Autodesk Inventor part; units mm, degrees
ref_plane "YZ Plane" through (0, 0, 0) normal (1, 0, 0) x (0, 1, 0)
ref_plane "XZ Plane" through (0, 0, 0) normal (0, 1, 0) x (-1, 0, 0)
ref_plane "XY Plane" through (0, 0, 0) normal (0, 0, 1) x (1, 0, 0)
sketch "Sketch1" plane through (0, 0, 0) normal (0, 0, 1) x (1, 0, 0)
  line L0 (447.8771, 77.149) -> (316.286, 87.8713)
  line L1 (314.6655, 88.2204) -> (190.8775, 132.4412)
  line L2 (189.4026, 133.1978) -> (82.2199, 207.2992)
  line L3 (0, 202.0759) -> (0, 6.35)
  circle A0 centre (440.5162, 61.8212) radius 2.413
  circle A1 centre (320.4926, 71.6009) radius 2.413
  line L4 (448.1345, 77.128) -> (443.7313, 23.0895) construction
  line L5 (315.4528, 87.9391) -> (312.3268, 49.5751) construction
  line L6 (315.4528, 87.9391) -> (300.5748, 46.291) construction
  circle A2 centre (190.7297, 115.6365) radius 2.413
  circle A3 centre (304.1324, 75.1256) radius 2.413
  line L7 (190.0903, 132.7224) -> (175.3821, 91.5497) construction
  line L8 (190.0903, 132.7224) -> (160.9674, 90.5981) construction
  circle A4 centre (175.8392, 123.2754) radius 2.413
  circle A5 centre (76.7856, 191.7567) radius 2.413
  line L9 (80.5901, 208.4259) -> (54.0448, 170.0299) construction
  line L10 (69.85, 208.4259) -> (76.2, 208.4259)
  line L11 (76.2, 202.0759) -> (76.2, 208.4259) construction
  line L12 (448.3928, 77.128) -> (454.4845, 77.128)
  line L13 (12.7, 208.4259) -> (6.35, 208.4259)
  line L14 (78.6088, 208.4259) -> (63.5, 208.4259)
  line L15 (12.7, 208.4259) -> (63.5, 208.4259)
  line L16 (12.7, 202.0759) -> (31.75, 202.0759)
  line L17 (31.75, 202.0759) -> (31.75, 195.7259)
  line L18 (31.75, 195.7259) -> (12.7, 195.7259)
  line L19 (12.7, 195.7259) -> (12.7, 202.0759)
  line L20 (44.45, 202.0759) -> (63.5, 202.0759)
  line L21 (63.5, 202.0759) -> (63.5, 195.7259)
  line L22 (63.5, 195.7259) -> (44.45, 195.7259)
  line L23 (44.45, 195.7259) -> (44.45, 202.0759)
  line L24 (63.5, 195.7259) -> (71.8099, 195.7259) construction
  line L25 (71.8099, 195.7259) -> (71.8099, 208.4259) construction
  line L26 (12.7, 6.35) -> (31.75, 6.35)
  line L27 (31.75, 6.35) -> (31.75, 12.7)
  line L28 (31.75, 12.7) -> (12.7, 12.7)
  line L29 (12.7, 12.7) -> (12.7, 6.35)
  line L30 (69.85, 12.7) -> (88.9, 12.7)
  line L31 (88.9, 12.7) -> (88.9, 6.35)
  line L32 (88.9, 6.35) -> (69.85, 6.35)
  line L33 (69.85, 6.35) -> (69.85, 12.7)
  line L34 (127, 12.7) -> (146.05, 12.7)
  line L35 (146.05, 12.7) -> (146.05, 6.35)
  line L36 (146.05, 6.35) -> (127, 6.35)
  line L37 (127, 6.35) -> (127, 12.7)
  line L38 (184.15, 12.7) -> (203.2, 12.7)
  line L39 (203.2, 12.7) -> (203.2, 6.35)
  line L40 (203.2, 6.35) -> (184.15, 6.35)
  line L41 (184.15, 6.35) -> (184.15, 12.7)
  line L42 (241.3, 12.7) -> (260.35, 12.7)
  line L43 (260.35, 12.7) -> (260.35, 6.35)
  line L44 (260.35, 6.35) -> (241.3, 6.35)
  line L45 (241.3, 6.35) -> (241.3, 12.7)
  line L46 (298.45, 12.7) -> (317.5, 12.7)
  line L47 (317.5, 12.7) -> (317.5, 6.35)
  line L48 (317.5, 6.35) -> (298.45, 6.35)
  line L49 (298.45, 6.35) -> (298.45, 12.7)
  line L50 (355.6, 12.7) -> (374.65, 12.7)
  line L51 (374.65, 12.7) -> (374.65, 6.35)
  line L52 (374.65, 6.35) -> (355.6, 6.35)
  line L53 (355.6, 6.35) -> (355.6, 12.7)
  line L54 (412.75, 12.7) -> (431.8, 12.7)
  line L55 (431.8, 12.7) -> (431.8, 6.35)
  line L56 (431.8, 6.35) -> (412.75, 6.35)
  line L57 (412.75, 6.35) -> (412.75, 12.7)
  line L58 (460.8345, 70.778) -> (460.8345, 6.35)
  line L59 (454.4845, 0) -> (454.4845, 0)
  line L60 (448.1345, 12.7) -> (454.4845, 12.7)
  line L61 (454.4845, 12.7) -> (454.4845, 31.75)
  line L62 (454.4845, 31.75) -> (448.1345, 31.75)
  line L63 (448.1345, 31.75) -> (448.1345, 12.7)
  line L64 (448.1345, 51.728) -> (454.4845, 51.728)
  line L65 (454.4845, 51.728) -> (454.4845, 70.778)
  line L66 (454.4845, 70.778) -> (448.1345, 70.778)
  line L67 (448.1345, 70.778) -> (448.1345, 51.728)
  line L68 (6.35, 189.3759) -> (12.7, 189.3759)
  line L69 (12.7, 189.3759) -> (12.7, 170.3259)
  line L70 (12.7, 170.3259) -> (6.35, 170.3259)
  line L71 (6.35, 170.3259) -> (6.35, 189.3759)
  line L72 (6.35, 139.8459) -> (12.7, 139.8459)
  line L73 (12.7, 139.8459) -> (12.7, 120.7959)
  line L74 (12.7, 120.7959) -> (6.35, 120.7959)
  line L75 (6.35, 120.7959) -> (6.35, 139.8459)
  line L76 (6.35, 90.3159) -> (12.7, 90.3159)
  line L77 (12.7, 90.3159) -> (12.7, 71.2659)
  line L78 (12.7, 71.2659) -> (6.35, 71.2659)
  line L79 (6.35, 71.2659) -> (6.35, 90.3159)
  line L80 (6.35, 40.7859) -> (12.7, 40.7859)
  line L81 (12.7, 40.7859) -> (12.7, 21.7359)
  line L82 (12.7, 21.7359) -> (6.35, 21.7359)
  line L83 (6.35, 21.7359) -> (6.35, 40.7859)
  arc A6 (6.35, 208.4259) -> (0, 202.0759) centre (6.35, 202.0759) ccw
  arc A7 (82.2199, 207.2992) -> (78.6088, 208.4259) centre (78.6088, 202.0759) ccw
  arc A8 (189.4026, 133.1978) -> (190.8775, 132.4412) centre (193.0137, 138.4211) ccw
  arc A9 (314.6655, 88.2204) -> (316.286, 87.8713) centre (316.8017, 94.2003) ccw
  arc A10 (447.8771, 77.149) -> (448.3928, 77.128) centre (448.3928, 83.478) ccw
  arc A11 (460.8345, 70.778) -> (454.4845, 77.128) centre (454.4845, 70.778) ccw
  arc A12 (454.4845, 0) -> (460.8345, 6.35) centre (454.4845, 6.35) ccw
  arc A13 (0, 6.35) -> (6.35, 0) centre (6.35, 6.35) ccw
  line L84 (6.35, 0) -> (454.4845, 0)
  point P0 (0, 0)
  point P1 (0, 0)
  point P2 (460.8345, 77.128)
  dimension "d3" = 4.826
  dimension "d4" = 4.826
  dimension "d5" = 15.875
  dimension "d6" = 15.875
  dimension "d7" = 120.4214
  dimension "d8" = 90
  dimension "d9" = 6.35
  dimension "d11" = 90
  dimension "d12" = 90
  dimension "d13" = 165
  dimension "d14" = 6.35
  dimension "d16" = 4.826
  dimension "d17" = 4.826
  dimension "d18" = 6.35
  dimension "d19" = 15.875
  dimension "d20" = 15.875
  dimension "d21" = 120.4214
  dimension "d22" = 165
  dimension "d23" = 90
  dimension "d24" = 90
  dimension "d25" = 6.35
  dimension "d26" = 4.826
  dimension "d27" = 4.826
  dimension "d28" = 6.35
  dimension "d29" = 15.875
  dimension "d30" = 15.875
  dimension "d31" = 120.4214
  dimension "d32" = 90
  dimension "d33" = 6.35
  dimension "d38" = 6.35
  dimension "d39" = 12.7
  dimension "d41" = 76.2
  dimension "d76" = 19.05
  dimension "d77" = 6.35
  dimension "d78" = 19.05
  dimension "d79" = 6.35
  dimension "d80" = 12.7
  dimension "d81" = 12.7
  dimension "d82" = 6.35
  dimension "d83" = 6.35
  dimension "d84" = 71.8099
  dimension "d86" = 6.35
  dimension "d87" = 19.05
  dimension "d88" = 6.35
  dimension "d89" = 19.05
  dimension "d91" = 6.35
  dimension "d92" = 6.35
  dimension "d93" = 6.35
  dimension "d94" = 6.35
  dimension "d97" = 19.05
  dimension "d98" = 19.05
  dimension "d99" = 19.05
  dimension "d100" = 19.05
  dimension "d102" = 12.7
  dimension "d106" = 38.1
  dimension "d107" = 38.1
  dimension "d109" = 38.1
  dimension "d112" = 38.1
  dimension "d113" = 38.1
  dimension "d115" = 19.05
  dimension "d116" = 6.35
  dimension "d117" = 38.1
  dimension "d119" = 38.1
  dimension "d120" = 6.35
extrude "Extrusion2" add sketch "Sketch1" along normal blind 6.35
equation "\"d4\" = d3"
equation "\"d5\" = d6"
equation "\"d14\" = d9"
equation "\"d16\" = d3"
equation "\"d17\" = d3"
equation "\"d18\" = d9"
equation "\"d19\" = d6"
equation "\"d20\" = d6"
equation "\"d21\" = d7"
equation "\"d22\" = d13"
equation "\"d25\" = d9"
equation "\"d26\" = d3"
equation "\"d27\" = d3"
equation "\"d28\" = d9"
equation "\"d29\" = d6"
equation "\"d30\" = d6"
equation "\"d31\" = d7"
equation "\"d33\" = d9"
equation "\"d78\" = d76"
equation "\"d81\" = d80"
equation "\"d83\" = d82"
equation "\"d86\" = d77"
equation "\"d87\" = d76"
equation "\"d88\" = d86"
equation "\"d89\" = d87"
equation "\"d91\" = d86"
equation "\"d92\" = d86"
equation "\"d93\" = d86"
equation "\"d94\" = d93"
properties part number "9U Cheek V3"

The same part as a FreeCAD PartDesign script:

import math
import FreeCAD as App
import Part
import Sketcher
from FreeCAD import Vector
Q = App.Units.Quantity

doc = App.newDocument("Part")
body = doc.addObject("PartDesign::Body", "Body")

sketch1 = body.newObject("Sketcher::SketchObject", "Sketch")
sketch1.AttachmentSupport = (doc.getObject("XY_Plane"), [""])
sketch1.MapMode = "FlatFace"
sketch1.addGeometry(Part.ArcOfCircle(Part.Circle(Vector(448.39371, 83.492903, 0), Vector(0, 0, 1), 6.364903), math.radians(-94.655556), math.radians(-90.00819)), False)
sketch1.addGeometry(Part.LineSegment(Vector(447.8771, 77.149, 0), Vector(316.286, 87.8713, 0)), False)
sketch1.addGeometry(Part.ArcOfCircle(Part.Circle(Vector(316.801236, 94.198673, 0), Vector(0, 0, 1), 6.348316), math.radians(-109.659253), math.radians(-94.655308)), False)
sketch1.addGeometry(Part.LineSegment(Vector(314.6655, 88.2204, 0), Vector(190.8775, 132.4412, 0)), False)
sketch1.addGeometry(Part.ArcOfCircle(Part.Circle(Vector(193.012867, 138.419709, 0), Vector(0, 0, 1), 6.348414), math.radians(-124.658789), math.radians(-109.6554)), False)
sketch1.addGeometry(Part.LineSegment(Vector(189.4026, 133.1978, 0), Vector(82.2199, 207.2992, 0)), False)
sketch1.addGeometry(Part.ArcOfCircle(Part.Circle(Vector(78.6088, 202.0759, 0), Vector(0, 0, 1), 6.350032), math.radians(55.342168), math.radians(90)), False)
sketch1.addGeometry(Part.LineSegment(Vector(78.6088, 208.4259, 0), Vector(6.35, 208.4259, 0)), False)
sketch1.addGeometry(Part.ArcOfCircle(Part.Circle(Vector(6.35, 202.0759, 0), Vector(0, 0, 1), 6.35), math.radians(90), math.radians(180)), False)
sketch1.addGeometry(Part.LineSegment(Vector(0, 202.0759, 0), Vector(0, 6.35, 0)), False)
sketch1.addGeometry(Part.ArcOfCircle(Part.Circle(Vector(6.35, 6.35, 0), Vector(0, 0, 1), 6.35), math.radians(180), math.radians(270)), False)
sketch1.addGeometry(Part.LineSegment(Vector(6.35, 0, 0), Vector(454.4845, 0, 0)), False)
sketch1.addGeometry(Part.ArcOfCircle(Part.Circle(Vector(454.4845, 6.35, 0), Vector(0, 0, 1), 6.35), math.radians(-90), math.radians(0)), False)
sketch1.addGeometry(Part.LineSegment(Vector(460.8345, 6.35, 0), Vector(460.8345, 70.778, 0)), False)
sketch1.addGeometry(Part.ArcOfCircle(Part.Circle(Vector(454.4845, 70.778, 0), Vector(0, 0, 1), 6.35), math.radians(0), math.radians(90)), False)
sketch1.addGeometry(Part.LineSegment(Vector(454.4845, 77.128, 0), Vector(448.3928, 77.128, 0)), False)
sketch1.addGeometry(Part.LineSegment(Vector(31.75, 6.35, 0), Vector(12.7, 6.35, 0)), False)
sketch1.addGeometry(Part.LineSegment(Vector(12.7, 6.35, 0), Vector(12.7, 12.7, 0)), False)
sketch1.addGeometry(Part.LineSegment(Vector(12.7, 12.7, 0), Vector(31.75, 12.7, 0)), False)
sketch1.addGeometry(Part.LineSegment(Vector(31.75, 12.7, 0), Vector(31.75, 6.35, 0)), False)
sketch1.addGeometry(Part.LineSegment(Vector(69.85, 6.35, 0), Vector(69.85, 12.7, 0)), False)
sketch1.addGeometry(Part.LineSegment(Vector(69.85, 12.7, 0), Vector(88.9, 12.7, 0)), False)
sketch1.addGeometry(Part.LineSegment(Vector(88.9, 12.7, 0), Vector(88.9, 6.35, 0)), False)
sketch1.addGeometry(Part.LineSegment(Vector(88.9, 6.35, 0), Vector(69.85, 6.35, 0)), False)
sketch1.addGeometry(Part.LineSegment(Vector(6.35, 21.7359, 0), Vector(6.35, 40.7859, 0)), False)
sketch1.addGeometry(Part.LineSegment(Vector(6.35, 40.7859, 0), Vector(12.7, 40.7859, 0)), False)
sketch1.addGeometry(Part.LineSegment(Vector(12.7, 40.7859, 0), Vector(12.7, 21.7359, 0)), False)
sketch1.addGeometry(Part.LineSegment(Vector(12.7, 21.7359, 0), Vector(6.35, 21.7359, 0)), False)
sketch1.addGeometry(Part.LineSegment(Vector(127, 6.35, 0), Vector(127, 12.7, 0)), False)
sketch1.addGeometry(Part.LineSegment(Vector(127, 12.7, 0), Vector(146.05, 12.7, 0)), False)
sketch1.addGeometry(Part.LineSegment(Vector(146.05, 12.7, 0), Vector(146.05, 6.35, 0)), False)
sketch1.addGeometry(Part.LineSegment(Vector(146.05, 6.35, 0), Vector(127, 6.35, 0)), False)
sketch1.addGeometry(Part.LineSegment(Vector(184.15, 6.35, 0), Vector(184.15, 12.7, 0)), False)
sketch1.addGeometry(Part.LineSegment(Vector(184.15, 12.7, 0), Vector(203.2, 12.7, 0)), False)
sketch1.addGeometry(Part.LineSegment(Vector(203.2, 12.7, 0), Vector(203.2, 6.35, 0)), False)
sketch1.addGeometry(Part.LineSegment(Vector(203.2, 6.35, 0), Vector(184.15, 6.35, 0)), False)
sketch1.addGeometry(Part.LineSegment(Vector(6.35, 71.2659, 0), Vector(6.35, 90.3159, 0)), False)
sketch1.addGeometry(Part.LineSegment(Vector(6.35, 90.3159, 0), Vector(12.7, 90.3159, 0)), False)
sketch1.addGeometry(Part.LineSegment(Vector(12.7, 90.3159, 0), Vector(12.7, 71.2659, 0)), False)
sketch1.addGeometry(Part.LineSegment(Vector(12.7, 71.2659, 0), Vector(6.35, 71.2659, 0)), False)
sketch1.addGeometry(Part.LineSegment(Vector(241.3, 6.35, 0), Vector(241.3, 12.7, 0)), False)
sketch1.addGeometry(Part.LineSegment(Vector(241.3, 12.7, 0), Vector(260.35, 12.7, 0)), False)
sketch1.addGeometry(Part.LineSegment(Vector(260.35, 12.7, 0), Vector(260.35, 6.35, 0)), False)
sketch1.addGeometry(Part.LineSegment(Vector(260.35, 6.35, 0), Vector(241.3, 6.35, 0)), False)
sketch1.addGeometry(Part.LineSegment(Vector(298.45, 6.35, 0), Vector(298.45, 12.7, 0)), False)
sketch1.addGeometry(Part.LineSegment(Vector(298.45, 12.7, 0), Vector(317.5, 12.7, 0)), False)
sketch1.addGeometry(Part.LineSegment(Vector(317.5, 12.7, 0), Vector(317.5, 6.35, 0)), False)
sketch1.addGeometry(Part.LineSegment(Vector(317.5, 6.35, 0), Vector(298.45, 6.35, 0)), False)
sketch1.addGeometry(Part.LineSegment(Vector(355.6, 6.35, 0), Vector(355.6, 12.7, 0)), False)
sketch1.addGeometry(Part.LineSegment(Vector(355.6, 12.7, 0), Vector(374.65, 12.7, 0)), False)
sketch1.addGeometry(Part.LineSegment(Vector(374.65, 12.7, 0), Vector(374.65, 6.35, 0)), False)
sketch1.addGeometry(Part.LineSegment(Vector(374.65, 6.35, 0), Vector(355.6, 6.35, 0)), False)
sketch1.addGeometry(Part.LineSegment(Vector(412.75, 6.35, 0), Vector(412.75, 12.7, 0)), False)
sketch1.addGeometry(Part.LineSegment(Vector(412.75, 12.7, 0), Vector(431.8, 12.7, 0)), False)
sketch1.addGeometry(Part.LineSegment(Vector(431.8, 12.7, 0), Vector(431.8, 6.35, 0)), False)
sketch1.addGeometry(Part.LineSegment(Vector(431.8, 6.35, 0), Vector(412.75, 6.35, 0)), False)
sketch1.addGeometry(Part.LineSegment(Vector(454.4845, 12.7, 0), Vector(448.1345, 12.7, 0)), False)
sketch1.addGeometry(Part.LineSegment(Vector(448.1345, 12.7, 0), Vector(448.1345, 31.75, 0)), False)
sketch1.addGeometry(Part.LineSegment(Vector(448.1345, 31.75, 0), Vector(454.4845, 31.75, 0)), False)
sketch1.addGeometry(Part.LineSegment(Vector(454.4845, 31.75, 0), Vector(454.4845, 12.7, 0)), False)
sketch1.addGeometry(Part.Circle(Vector(304.1324, 75.1256, 0), Vector(0, 0, 1), 2.413), False)
sketch1.addGeometry(Part.Circle(Vector(320.4926, 71.6009, 0), Vector(0, 0, 1), 2.413), False)
sketch1.addGeometry(Part.Circle(Vector(440.5162, 61.8212, 0), Vector(0, 0, 1), 2.413), False)
sketch1.addGeometry(Part.LineSegment(Vector(454.4845, 51.728, 0), Vector(448.1345, 51.728, 0)), False)
sketch1.addGeometry(Part.LineSegment(Vector(448.1345, 51.728, 0), Vector(448.1345, 70.778, 0)), False)
sketch1.addGeometry(Part.LineSegment(Vector(448.1345, 70.778, 0), Vector(454.4845, 70.778, 0)), False)
sketch1.addGeometry(Part.LineSegment(Vector(454.4845, 70.778, 0), Vector(454.4845, 51.728, 0)), False)
sketch1.addGeometry(Part.LineSegment(Vector(6.35, 120.7959, 0), Vector(6.35, 139.8459, 0)), False)
sketch1.addGeometry(Part.LineSegment(Vector(6.35, 139.8459, 0), Vector(12.7, 139.8459, 0)), False)
sketch1.addGeometry(Part.LineSegment(Vector(12.7, 139.8459, 0), Vector(12.7, 120.7959, 0)), False)
sketch1.addGeometry(Part.LineSegment(Vector(12.7, 120.7959, 0), Vector(6.35, 120.7959, 0)), False)
sketch1.addGeometry(Part.Circle(Vector(190.7297, 115.6365, 0), Vector(0, 0, 1), 2.413), False)
sketch1.addGeometry(Part.Circle(Vector(175.8392, 123.2754, 0), Vector(0, 0, 1), 2.413), False)
sketch1.addGeometry(Part.LineSegment(Vector(6.35, 170.3259, 0), Vector(6.35, 189.3759, 0)), False)
sketch1.addGeometry(Part.LineSegment(Vector(6.35, 189.3759, 0), Vector(12.7, 189.3759, 0)), False)
sketch1.addGeometry(Part.LineSegment(Vector(12.7, 189.3759, 0), Vector(12.7, 170.3259, 0)), False)
sketch1.addGeometry(Part.LineSegment(Vector(12.7, 170.3259, 0), Vector(6.35, 170.3259, 0)), False)
sketch1.addGeometry(Part.LineSegment(Vector(12.7, 195.7259, 0), Vector(12.7, 202.0759, 0)), False)
sketch1.addGeometry(Part.LineSegment(Vector(12.7, 202.0759, 0), Vector(31.75, 202.0759, 0)), False)
sketch1.addGeometry(Part.LineSegment(Vector(31.75, 202.0759, 0), Vector(31.75, 195.7259, 0)), False)
sketch1.addGeometry(Part.LineSegment(Vector(31.75, 195.7259, 0), Vector(12.7, 195.7259, 0)), False)
sketch1.addGeometry(Part.LineSegment(Vector(44.45, 195.7259, 0), Vector(44.45, 202.0759, 0)), False)
sketch1.addGeometry(Part.LineSegment(Vector(44.45, 202.0759, 0), Vector(63.5, 202.0759, 0)), False)
sketch1.addGeometry(Part.LineSegment(Vector(63.5, 202.0759, 0), Vector(63.5, 195.7259, 0)), False)
sketch1.addGeometry(Part.LineSegment(Vector(63.5, 195.7259, 0), Vector(44.45, 195.7259, 0)), False)
sketch1.addGeometry(Part.Circle(Vector(76.7856, 191.7567, 0), Vector(0, 0, 1), 2.413), False)
sketch1.addConstraint(Sketcher.Constraint("Coincident", 0, 1, 1, 1))
sketch1.addConstraint(Sketcher.Constraint("Coincident", 1, 2, 2, 2))
sketch1.addConstraint(Sketcher.Constraint("Coincident", 2, 1, 3, 1))
sketch1.addConstraint(Sketcher.Constraint("Coincident", 3, 2, 4, 2))
sketch1.addConstraint(Sketcher.Constraint("Coincident", 4, 1, 5, 1))
sketch1.addConstraint(Sketcher.Constraint("Coincident", 5, 2, 6, 1))
sketch1.addConstraint(Sketcher.Constraint("Coincident", 6, 2, 7, 1))
sketch1.addConstraint(Sketcher.Constraint("Coincident", 7, 2, 8, 1))
sketch1.addConstraint(Sketcher.Constraint("Coincident", 8, 2, 9, 1))
sketch1.addConstraint(Sketcher.Constraint("Coincident", 9, 2, 10, 1))
sketch1.addConstraint(Sketcher.Constraint("Coincident", 10, 2, 11, 1))
sketch1.addConstraint(Sketcher.Constraint("Coincident", 11, 2, 12, 1))
sketch1.addConstraint(Sketcher.Constraint("Coincident", 12, 2, 13, 1))
sketch1.addConstraint(Sketcher.Constraint("Coincident", 13, 2, 14, 1))
sketch1.addConstraint(Sketcher.Constraint("Coincident", 14, 2, 15, 1))
sketch1.addConstraint(Sketcher.Constraint("Coincident", 15, 2, 0, 2))
sketch1.addConstraint(Sketcher.Constraint("Coincident", 16, 2, 17, 1))
sketch1.addConstraint(Sketcher.Constraint("Coincident", 17, 2, 18, 1))
sketch1.addConstraint(Sketcher.Constraint("Coincident", 18, 2, 19, 1))
sketch1.addConstraint(Sketcher.Constraint("Coincident", 19, 2, 16, 1))
sketch1.addConstraint(Sketcher.Constraint("Coincident", 20, 2, 21, 1))
sketch1.addConstraint(Sketcher.Constraint("Coincident", 21, 2, 22, 1))
sketch1.addConstraint(Sketcher.Constraint("Coincident", 22, 2, 23, 1))
sketch1.addConstraint(Sketcher.Constraint("Coincident", 23, 2, 20, 1))
sketch1.addConstraint(Sketcher.Constraint("Coincident", 24, 2, 25, 1))
sketch1.addConstraint(Sketcher.Constraint("Coincident", 25, 2, 26, 1))
sketch1.addConstraint(Sketcher.Constraint("Coincident", 26, 2, 27, 1))
sketch1.addConstraint(Sketcher.Constraint("Coincident", 27, 2, 24, 1))
sketch1.addConstraint(Sketcher.Constraint("Coincident", 28, 2, 29, 1))
sketch1.addConstraint(Sketcher.Constraint("Coincident", 29, 2, 30, 1))
sketch1.addConstraint(Sketcher.Constraint("Coincident", 30, 2, 31, 1))
sketch1.addConstraint(Sketcher.Constraint("Coincident", 31, 2, 28, 1))
sketch1.addConstraint(Sketcher.Constraint("Coincident", 32, 2, 33, 1))
sketch1.addConstraint(Sketcher.Constraint("Coincident", 33, 2, 34, 1))
sketch1.addConstraint(Sketcher.Constraint("Coincident", 34, 2, 35, 1))
sketch1.addConstraint(Sketcher.Constraint("Coincident", 35, 2, 32, 1))
sketch1.addConstraint(Sketcher.Constraint("Coincident", 36, 2, 37, 1))
sketch1.addConstraint(Sketcher.Constraint("Coincident", 37, 2, 38, 1))
sketch1.addConstraint(Sketcher.Constraint("Coincident", 38, 2, 39, 1))
sketch1.addConstraint(Sketcher.Constraint("Coincident", 39, 2, 36, 1))
sketch1.addConstraint(Sketcher.Constraint("Coincident", 40, 2, 41, 1))
sketch1.addConstraint(Sketcher.Constraint("Coincident", 41, 2, 42, 1))
sketch1.addConstraint(Sketcher.Constraint("Coincident", 42, 2, 43, 1))
sketch1.addConstraint(Sketcher.Constraint("Coincident", 43, 2, 40, 1))
sketch1.addConstraint(Sketcher.Constraint("Coincident", 44, 2, 45, 1))
sketch1.addConstraint(Sketcher.Constraint("Coincident", 45, 2, 46, 1))
sketch1.addConstraint(Sketcher.Constraint("Coincident", 46, 2, 47, 1))
sketch1.addConstraint(Sketcher.Constraint("Coincident", 47, 2, 44, 1))
sketch1.addConstraint(Sketcher.Constraint("Coincident", 48, 2, 49, 1))
sketch1.addConstraint(Sketcher.Constraint("Coincident", 49, 2, 50, 1))
sketch1.addConstraint(Sketcher.Constraint("Coincident", 50, 2, 51, 1))
sketch1.addConstraint(Sketcher.Constraint("Coincident", 51, 2, 48, 1))
sketch1.addConstraint(Sketcher.Constraint("Coincident", 52, 2, 53, 1))
sketch1.addConstraint(Sketcher.Constraint("Coincident", 53, 2, 54, 1))
sketch1.addConstraint(Sketcher.Constraint("Coincident", 54, 2, 55, 1))
sketch1.addConstraint(Sketcher.Constraint("Coincident", 55, 2, 52, 1))
sketch1.addConstraint(Sketcher.Constraint("Coincident", 56, 2, 57, 1))
sketch1.addConstraint(Sketcher.Constraint("Coincident", 57, 2, 58, 1))
sketch1.addConstraint(Sketcher.Constraint("Coincident", 58, 2, 59, 1))
sketch1.addConstraint(Sketcher.Constraint("Coincident", 59, 2, 56, 1))
sketch1.addConstraint(Sketcher.Constraint("Coincident", 63, 2, 64, 1))
sketch1.addConstraint(Sketcher.Constraint("Coincident", 64, 2, 65, 1))
sketch1.addConstraint(Sketcher.Constraint("Coincident", 65, 2, 66, 1))
sketch1.addConstraint(Sketcher.Constraint("Coincident", 66, 2, 63, 1))
sketch1.addConstraint(Sketcher.Constraint("Coincident", 67, 2, 68, 1))
sketch1.addConstraint(Sketcher.Constraint("Coincident", 68, 2, 69, 1))
sketch1.addConstraint(Sketcher.Constraint("Coincident", 69, 2, 70, 1))
sketch1.addConstraint(Sketcher.Constraint("Coincident", 70, 2, 67, 1))
sketch1.addConstraint(Sketcher.Constraint("Coincident", 73, 2, 74, 1))
sketch1.addConstraint(Sketcher.Constraint("Coincident", 74, 2, 75, 1))
sketch1.addConstraint(Sketcher.Constraint("Coincident", 75, 2, 76, 1))
sketch1.addConstraint(Sketcher.Constraint("Coincident", 76, 2, 73, 1))
sketch1.addConstraint(Sketcher.Constraint("Coincident", 77, 2, 78, 1))
sketch1.addConstraint(Sketcher.Constraint("Coincident", 78, 2, 79, 1))
sketch1.addConstraint(Sketcher.Constraint("Coincident", 79, 2, 80, 1))
sketch1.addConstraint(Sketcher.Constraint("Coincident", 80, 2, 77, 1))
sketch1.addConstraint(Sketcher.Constraint("Coincident", 81, 2, 82, 1))
sketch1.addConstraint(Sketcher.Constraint("Coincident", 82, 2, 83, 1))
sketch1.addConstraint(Sketcher.Constraint("Coincident", 83, 2, 84, 1))
sketch1.addConstraint(Sketcher.Constraint("Coincident", 84, 2, 81, 1))
sketch1.addConstraint(Sketcher.Constraint("Horizontal", 7))
sketch1.addConstraint(Sketcher.Constraint("Vertical", 9))
sketch1.addConstraint(Sketcher.Constraint("Horizontal", 11))
sketch1.addConstraint(Sketcher.Constraint("Vertical", 13))
sketch1.addConstraint(Sketcher.Constraint("Horizontal", 15))
sketch1.addConstraint(Sketcher.Constraint("Horizontal", 16))
sketch1.addConstraint(Sketcher.Constraint("Vertical", 17))
sketch1.addConstraint(Sketcher.Constraint("Horizontal", 18))
sketch1.addConstraint(Sketcher.Constraint("Vertical", 19))
sketch1.addConstraint(Sketcher.Constraint("Vertical", 20))
sketch1.addConstraint(Sketcher.Constraint("Horizontal", 21))
sketch1.addConstraint(Sketcher.Constraint("Vertical", 22))
sketch1.addConstraint(Sketcher.Constraint("Horizontal", 23))
sketch1.addConstraint(Sketcher.Constraint("Vertical", 24))
sketch1.addConstraint(Sketcher.Constraint("Horizontal", 25))
sketch1.addConstraint(Sketcher.Constraint("Vertical", 26))
sketch1.addConstraint(Sketcher.Constraint("Horizontal", 27))
sketch1.addConstraint(Sketcher.Constraint("Vertical", 28))
sketch1.addConstraint(Sketcher.Constraint("Horizontal", 29))
sketch1.addConstraint(Sketcher.Constraint("Vertical", 30))
sketch1.addConstraint(Sketcher.Constraint("Horizontal", 31))
sketch1.addConstraint(Sketcher.Constraint("Vertical", 32))
sketch1.addConstraint(Sketcher.Constraint("Horizontal", 33))
sketch1.addConstraint(Sketcher.Constraint("Vertical", 34))
sketch1.addConstraint(Sketcher.Constraint("Horizontal", 35))
sketch1.addConstraint(Sketcher.Constraint("Vertical", 36))
sketch1.addConstraint(Sketcher.Constraint("Horizontal", 37))
sketch1.addConstraint(Sketcher.Constraint("Vertical", 38))
sketch1.addConstraint(Sketcher.Constraint("Horizontal", 39))
sketch1.addConstraint(Sketcher.Constraint("Vertical", 40))
sketch1.addConstraint(Sketcher.Constraint("Horizontal", 41))
sketch1.addConstraint(Sketcher.Constraint("Vertical", 42))
sketch1.addConstraint(Sketcher.Constraint("Horizontal", 43))
sketch1.addConstraint(Sketcher.Constraint("Vertical", 44))
sketch1.addConstraint(Sketcher.Constraint("Horizontal", 45))
sketch1.addConstraint(Sketcher.Constraint("Vertical", 46))
sketch1.addConstraint(Sketcher.Constraint("Horizontal", 47))
sketch1.addConstraint(Sketcher.Constraint("Vertical", 48))
sketch1.addConstraint(Sketcher.Constraint("Horizontal", 49))
sketch1.addConstraint(Sketcher.Constraint("Vertical", 50))
sketch1.addConstraint(Sketcher.Constraint("Horizontal", 51))
sketch1.addConstraint(Sketcher.Constraint("Vertical", 52))
sketch1.addConstraint(Sketcher.Constraint("Horizontal", 53))
sketch1.addConstraint(Sketcher.Constraint("Vertical", 54))
sketch1.addConstraint(Sketcher.Constraint("Horizontal", 55))
sketch1.addConstraint(Sketcher.Constraint("Horizontal", 56))
sketch1.addConstraint(Sketcher.Constraint("Vertical", 57))
sketch1.addConstraint(Sketcher.Constraint("Horizontal", 58))
sketch1.addConstraint(Sketcher.Constraint("Vertical", 59))
sketch1.addConstraint(Sketcher.Constraint("Horizontal", 63))
sketch1.addConstraint(Sketcher.Constraint("Vertical", 64))
sketch1.addConstraint(Sketcher.Constraint("Horizontal", 65))
sketch1.addConstraint(Sketcher.Constraint("Vertical", 66))
sketch1.addConstraint(Sketcher.Constraint("Vertical", 67))
sketch1.addConstraint(Sketcher.Constraint("Horizontal", 68))
sketch1.addConstraint(Sketcher.Constraint("Vertical", 69))
sketch1.addConstraint(Sketcher.Constraint("Horizontal", 70))
sketch1.addConstraint(Sketcher.Constraint("Vertical", 73))
sketch1.addConstraint(Sketcher.Constraint("Horizontal", 74))
sketch1.addConstraint(Sketcher.Constraint("Vertical", 75))
sketch1.addConstraint(Sketcher.Constraint("Horizontal", 76))
sketch1.addConstraint(Sketcher.Constraint("Vertical", 77))
sketch1.addConstraint(Sketcher.Constraint("Horizontal", 78))
sketch1.addConstraint(Sketcher.Constraint("Vertical", 79))
sketch1.addConstraint(Sketcher.Constraint("Horizontal", 80))
sketch1.addConstraint(Sketcher.Constraint("Vertical", 81))
sketch1.addConstraint(Sketcher.Constraint("Horizontal", 82))
sketch1.addConstraint(Sketcher.Constraint("Vertical", 83))
sketch1.addConstraint(Sketcher.Constraint("Horizontal", 84))
sketch1.addConstraint(Sketcher.Constraint("Coincident", 65, 2, 14, 3))
sketch1.addConstraint(Sketcher.Constraint("PointOnObject", 8, 2, -2))
sketch1.addConstraint(Sketcher.Constraint("PointOnObject", 10, 2, -1))
sketch1.addConstraint(Sketcher.Constraint("Diameter", 60, Q("0.19 in")))
sketch1.addConstraint(Sketcher.Constraint("Diameter", 61, Q("0.19 in")))
sketch1.addConstraint(Sketcher.Constraint("Diameter", 62, Q("0.19 in")))
sketch1.addConstraint(Sketcher.Constraint("Diameter", 71, Q("0.19 in")))
sketch1.addConstraint(Sketcher.Constraint("Diameter", 72, Q("0.19 in")))
sketch1.addConstraint(Sketcher.Constraint("Diameter", 85, Q("0.19 in")))
sketch1.addConstraint(Sketcher.Constraint("Radius", 6, Q("0.25 in")))
sketch1.addConstraint(Sketcher.Constraint("Radius", 8, Q("0.25 in")))
sketch1.addConstraint(Sketcher.Constraint("Radius", 10, Q("0.25 in")))
sketch1.addConstraint(Sketcher.Constraint("Radius", 12, Q("0.25 in")))
sketch1.addConstraint(Sketcher.Constraint("Radius", 14, Q("0.25 in")))
sketch1.addConstraint(Sketcher.Constraint("DistanceX", 16, 2, 16, 1, Q("0.75 in")))
sketch1.addConstraint(Sketcher.Constraint("DistanceX", 21, 1, 21, 2, Q("0.75 in")))
sketch1.addConstraint(Sketcher.Constraint("DistanceX", 25, 1, 25, 2, Q("0.25 in")))
sketch1.addConstraint(Sketcher.Constraint("DistanceX", 29, 1, 29, 2, Q("0.75 in")))
sketch1.addConstraint(Sketcher.Constraint("DistanceX", 33, 1, 33, 2, Q("0.75 in")))
sketch1.addConstraint(Sketcher.Constraint("DistanceX", 37, 1, 37, 2, Q("0.25 in")))
sketch1.addConstraint(Sketcher.Constraint("DistanceX", 41, 1, 41, 2, Q("0.75 in")))
sketch1.addConstraint(Sketcher.Constraint("DistanceX", 45, 1, 45, 2, Q("0.75 in")))
sketch1.addConstraint(Sketcher.Constraint("DistanceX", 49, 1, 49, 2, Q("0.75 in")))
sketch1.addConstraint(Sketcher.Constraint("DistanceX", 53, 1, 53, 2, Q("0.75 in")))
sketch1.addConstraint(Sketcher.Constraint("DistanceX", 56, 2, 56, 1, Q("0.25 in")))
sketch1.addConstraint(Sketcher.Constraint("DistanceX", 63, 2, 63, 1, Q("0.25 in")))
sketch1.addConstraint(Sketcher.Constraint("DistanceX", 68, 1, 68, 2, Q("0.25 in")))
sketch1.addConstraint(Sketcher.Constraint("DistanceX", 74, 1, 74, 2, Q("0.25 in")))
sketch1.addConstraint(Sketcher.Constraint("DistanceX", 78, 1, 78, 2, Q("0.75 in")))
sketch1.addConstraint(Sketcher.Constraint("DistanceX", 82, 1, 82, 2, Q("0.75 in")))
sketch1.addConstraint(Sketcher.Constraint("DistanceY", 17, 1, 17, 2, Q("0.25 in")))
sketch1.addConstraint(Sketcher.Constraint("DistanceY", 20, 1, 20, 2, Q("0.25 in")))
sketch1.addConstraint(Sketcher.Constraint("DistanceY", 24, 1, 24, 2, Q("0.75 in")))
sketch1.addConstraint(Sketcher.Constraint("DistanceY", 28, 1, 28, 2, Q("0.25 in")))
sketch1.addConstraint(Sketcher.Constraint("DistanceY", 32, 1, 32, 2, Q("0.25 in")))
sketch1.addConstraint(Sketcher.Constraint("DistanceY", 36, 1, 36, 2, Q("0.75 in")))
sketch1.addConstraint(Sketcher.Constraint("DistanceY", 40, 1, 40, 2, Q("0.25 in")))
sketch1.addConstraint(Sketcher.Constraint("DistanceY", 44, 1, 44, 2, Q("0.25 in")))
sketch1.addConstraint(Sketcher.Constraint("DistanceY", 48, 1, 48, 2, Q("0.25 in")))
sketch1.addConstraint(Sketcher.Constraint("DistanceY", 52, 1, 52, 2, Q("0.25 in")))
sketch1.addConstraint(Sketcher.Constraint("DistanceY", 57, 1, 57, 2, Q("0.75 in")))
sketch1.addConstraint(Sketcher.Constraint("DistanceY", 64, 1, 64, 2, Q("0.75 in")))
sketch1.addConstraint(Sketcher.Constraint("DistanceY", 67, 1, 67, 2, Q("0.75 in")))
sketch1.addConstraint(Sketcher.Constraint("DistanceY", 73, 1, 73, 2, Q("0.75 in")))
sketch1.addConstraint(Sketcher.Constraint("DistanceY", 77, 1, 77, 2, Q("0.25 in")))
sketch1.addConstraint(Sketcher.Constraint("DistanceY", 81, 1, 81, 2, Q("0.25 in")))
sketch1.addConstraint(Sketcher.Constraint("DistanceX", -1, 1, 16, 2, Q("0.5 in")))
sketch1.addConstraint(Sketcher.Constraint("DistanceY", -1, 1, 17, 2, Q("0.5 in")))
sketch1.addConstraint(Sketcher.Constraint("DistanceY", -1, 1, 20, 2, Q("0.5 in")))
sketch1.addConstraint(Sketcher.Constraint("DistanceX", -1, 1, 25, 2, Q("0.5 in")))
sketch1.addConstraint(Sketcher.Constraint("DistanceY", -1, 1, 28, 2, Q("0.5 in")))
sketch1.addConstraint(Sketcher.Constraint("DistanceY", -1, 1, 32, 2, Q("0.5 in")))
sketch1.addConstraint(Sketcher.Constraint("DistanceX", -1, 1, 37, 2, Q("0.5 in")))
sketch1.addConstraint(Sketcher.Constraint("DistanceY", -1, 1, 40, 2, Q("0.5 in")))
sketch1.addConstraint(Sketcher.Constraint("DistanceY", -1, 1, 44, 2, Q("0.5 in")))
sketch1.addConstraint(Sketcher.Constraint("DistanceY", -1, 1, 48, 2, Q("0.5 in")))
sketch1.addConstraint(Sketcher.Constraint("DistanceY", -1, 1, 52, 2, Q("0.5 in")))
sketch1.addConstraint(Sketcher.Constraint("DistanceY", -1, 1, 56, 2, Q("0.5 in")))
sketch1.addConstraint(Sketcher.Constraint("DistanceX", -1, 1, 68, 2, Q("0.5 in")))
sketch1.addConstraint(Sketcher.Constraint("DistanceX", -1, 1, 74, 2, Q("0.5 in")))
sketch1.addConstraint(Sketcher.Constraint("DistanceX", -1, 1, 77, 2, Q("0.5 in")))
sketch1.addConstraint(Sketcher.Constraint("DistanceX", -1, 1, 7, 2, Q("0.25 in")))
sketch1.addConstraint(Sketcher.Constraint("DistanceY", -1, 1, 9, 2, Q("0.25 in")))
sketch1.addConstraint(Sketcher.Constraint("DistanceX", -1, 1, 10, 2, Q("0.25 in")))
sketch1.addConstraint(Sketcher.Constraint("DistanceY", -1, 1, 12, 2, Q("0.25 in")))
sketch1.addConstraint(Sketcher.Constraint("DistanceX", -1, 1, 28, 2, Q("5 in")))
sketch1.addConstraint(Sketcher.Constraint("DistanceX", -1, 1, 33, 2, Q("8 in")))
sketch1.addConstraint(Sketcher.Constraint("DistanceX", -1, 1, 48, 2, Q("14 in")))
sketch1.addConstraint(Sketcher.Constraint("DistanceX", -1, 1, 53, 2, Q("17 in")))
sketch1.addConstraint(Sketcher.Constraint("DistanceX", -1, 1, 21, 2, Q("3.5 in")))
sketch1.addConstraint(Sketcher.Constraint("DistanceX", -1, 1, 40, 2, Q("9.5 in")))
sketch1.addConstraint(Sketcher.Constraint("DistanceX", -1, 1, 45, 2, Q("12.5 in")))
sketch1.addConstraint(Sketcher.Constraint("DistanceX", -1, 1, 82, 2, Q("2.5 in")))
sketch1.addConstraint(Sketcher.Constraint("Radius", 0, Q("0.2505906 in")))
sketch1.addConstraint(Sketcher.Constraint("Radius", 2, 6.3483))
sketch1.addConstraint(Sketcher.Constraint("Radius", 4, 6.3484))
sketch1.addConstraint(Sketcher.Constraint("DistanceX", 11, 1, 11, 2, Q("17.6431 in")))
sketch1.addConstraint(Sketcher.Constraint("DistanceY", -1, 1, 4, 1, Q("5.244 in")))
sketch1.addConstraint(Sketcher.Constraint("DistanceX", -1, 1, 5, 2, Q("3.237 in")))
sketch1.addConstraint(Sketcher.Constraint("DistanceX", 7, 2, 7, 1, 72.2588))
sketch1.addConstraint(Sketcher.Constraint("DistanceX", 15, 2, 15, 1, 6.0917))
sketch1.addConstraint(Sketcher.Constraint("DistanceY", 9, 2, 9, 1, 195.726))
sketch1.addConstraint(Sketcher.Constraint("DistanceY", 13, 1, 13, 2, 64.428))
sketch1.addConstraint(Sketcher.Constraint("DistanceX", -1, 1, 0, 3, Q("17.6533 in")))
sketch1.addConstraint(Sketcher.Constraint("DistanceX", -1, 1, 2, 3, Q("12.4725 in")))
sketch1.addConstraint(Sketcher.Constraint("DistanceY", -1, 1, 2, 3, Q("3.7086 in")))
sketch1.addConstraint(Sketcher.Constraint("DistanceY", -1, 1, 4, 3, Q("5.4496 in")))
sketch1.addConstraint(Sketcher.Constraint("DistanceX", -1, 1, 12, 3, Q("17.8931 in")))
sketch1.addConstraint(Sketcher.Constraint("DistanceY", -1, 1, 60, 3, Q("2.9577 in")))
sketch1.addConstraint(Sketcher.Constraint("DistanceY", -1, 1, 62, 3, Q("2.4339 in")))
sketch1.addConstraint(Sketcher.Constraint("DistanceX", -1, 1, 72, 3, Q("6.9228 in")))
sketch1.addConstraint(Sketcher.Constraint("DistanceX", -1, 1, 1, 2, Q("12.4522 in")))
sketch1.addConstraint(Sketcher.Constraint("DistanceX", -1, 1, 2, 1, Q("12.3884 in")))
sketch1.addConstraint(Sketcher.Constraint("DistanceX", -1, 1, 4, 1, Q("7.4568 in")))
sketch1.addConstraint(Sketcher.Constraint("DistanceX", -1, 1, 14, 2, Q("17.8931 in")))
sketch1.addConstraint(Sketcher.Constraint("DistanceX", -1, 1, 56, 2, Q("17.6431 in")))
sketch1.addConstraint(Sketcher.Constraint("Distance", 1, 132.0272))
sketch1.addConstraint(Sketcher.Constraint("Distance", 3, 131.4494))
sketch1.addConstraint(Sketcher.Constraint("Distance", 5, 130.304))
sketch1.addConstraint(Sketcher.Constraint("DistanceY", -1, 1, 0, 3, 83.493))
sketch1.addConstraint(Sketcher.Constraint("DistanceX", -1, 1, 6, 3, 78.6088))
sketch1.addConstraint(Sketcher.Constraint("DistanceX", -1, 1, 60, 3, 304.1324))
sketch1.addConstraint(Sketcher.Constraint("DistanceX", -1, 1, 61, 3, 320.4926))
sketch1.addConstraint(Sketcher.Constraint("DistanceY", -1, 1, 61, 3, 71.601))
sketch1.addConstraint(Sketcher.Constraint("DistanceX", -1, 1, 62, 3, 440.5162))
sketch1.addConstraint(Sketcher.Constraint("DistanceX", -1, 1, 71, 3, 190.7297))
sketch1.addConstraint(Sketcher.Constraint("DistanceY", -1, 1, 71, 3, 115.6365))
sketch1.addConstraint(Sketcher.Constraint("DistanceY", -1, 1, 72, 3, 123.2754))
sketch1.addConstraint(Sketcher.Constraint("DistanceX", -1, 1, 85, 3, 76.7856))
sketch1.addConstraint(Sketcher.Constraint("DistanceY", -1, 1, 85, 3, 191.7567))
sketch1.addConstraint(Sketcher.Constraint("DistanceY", -1, 1, 24, 2, 40.786))
sketch1.addConstraint(Sketcher.Constraint("DistanceY", -1, 1, 36, 2, 90.316))
sketch1.addConstraint(Sketcher.Constraint("DistanceY", -1, 1, 67, 2, 139.846))
sketch1.addConstraint(Sketcher.Constraint("DistanceY", -1, 1, 73, 2, 189.376))
sketch1.addConstraint(Sketcher.Constraint("DistanceY", -1, 1, 77, 2, 202.076))
sketch1.addConstraint(Sketcher.Constraint("DistanceY", -1, 1, 81, 2, 202.076))
pad1 = body.newObject("PartDesign::Pad", "Pad")
pad1.Profile = sketch1
pad1.Length = Q("0.25 in")

doc.recompute()
